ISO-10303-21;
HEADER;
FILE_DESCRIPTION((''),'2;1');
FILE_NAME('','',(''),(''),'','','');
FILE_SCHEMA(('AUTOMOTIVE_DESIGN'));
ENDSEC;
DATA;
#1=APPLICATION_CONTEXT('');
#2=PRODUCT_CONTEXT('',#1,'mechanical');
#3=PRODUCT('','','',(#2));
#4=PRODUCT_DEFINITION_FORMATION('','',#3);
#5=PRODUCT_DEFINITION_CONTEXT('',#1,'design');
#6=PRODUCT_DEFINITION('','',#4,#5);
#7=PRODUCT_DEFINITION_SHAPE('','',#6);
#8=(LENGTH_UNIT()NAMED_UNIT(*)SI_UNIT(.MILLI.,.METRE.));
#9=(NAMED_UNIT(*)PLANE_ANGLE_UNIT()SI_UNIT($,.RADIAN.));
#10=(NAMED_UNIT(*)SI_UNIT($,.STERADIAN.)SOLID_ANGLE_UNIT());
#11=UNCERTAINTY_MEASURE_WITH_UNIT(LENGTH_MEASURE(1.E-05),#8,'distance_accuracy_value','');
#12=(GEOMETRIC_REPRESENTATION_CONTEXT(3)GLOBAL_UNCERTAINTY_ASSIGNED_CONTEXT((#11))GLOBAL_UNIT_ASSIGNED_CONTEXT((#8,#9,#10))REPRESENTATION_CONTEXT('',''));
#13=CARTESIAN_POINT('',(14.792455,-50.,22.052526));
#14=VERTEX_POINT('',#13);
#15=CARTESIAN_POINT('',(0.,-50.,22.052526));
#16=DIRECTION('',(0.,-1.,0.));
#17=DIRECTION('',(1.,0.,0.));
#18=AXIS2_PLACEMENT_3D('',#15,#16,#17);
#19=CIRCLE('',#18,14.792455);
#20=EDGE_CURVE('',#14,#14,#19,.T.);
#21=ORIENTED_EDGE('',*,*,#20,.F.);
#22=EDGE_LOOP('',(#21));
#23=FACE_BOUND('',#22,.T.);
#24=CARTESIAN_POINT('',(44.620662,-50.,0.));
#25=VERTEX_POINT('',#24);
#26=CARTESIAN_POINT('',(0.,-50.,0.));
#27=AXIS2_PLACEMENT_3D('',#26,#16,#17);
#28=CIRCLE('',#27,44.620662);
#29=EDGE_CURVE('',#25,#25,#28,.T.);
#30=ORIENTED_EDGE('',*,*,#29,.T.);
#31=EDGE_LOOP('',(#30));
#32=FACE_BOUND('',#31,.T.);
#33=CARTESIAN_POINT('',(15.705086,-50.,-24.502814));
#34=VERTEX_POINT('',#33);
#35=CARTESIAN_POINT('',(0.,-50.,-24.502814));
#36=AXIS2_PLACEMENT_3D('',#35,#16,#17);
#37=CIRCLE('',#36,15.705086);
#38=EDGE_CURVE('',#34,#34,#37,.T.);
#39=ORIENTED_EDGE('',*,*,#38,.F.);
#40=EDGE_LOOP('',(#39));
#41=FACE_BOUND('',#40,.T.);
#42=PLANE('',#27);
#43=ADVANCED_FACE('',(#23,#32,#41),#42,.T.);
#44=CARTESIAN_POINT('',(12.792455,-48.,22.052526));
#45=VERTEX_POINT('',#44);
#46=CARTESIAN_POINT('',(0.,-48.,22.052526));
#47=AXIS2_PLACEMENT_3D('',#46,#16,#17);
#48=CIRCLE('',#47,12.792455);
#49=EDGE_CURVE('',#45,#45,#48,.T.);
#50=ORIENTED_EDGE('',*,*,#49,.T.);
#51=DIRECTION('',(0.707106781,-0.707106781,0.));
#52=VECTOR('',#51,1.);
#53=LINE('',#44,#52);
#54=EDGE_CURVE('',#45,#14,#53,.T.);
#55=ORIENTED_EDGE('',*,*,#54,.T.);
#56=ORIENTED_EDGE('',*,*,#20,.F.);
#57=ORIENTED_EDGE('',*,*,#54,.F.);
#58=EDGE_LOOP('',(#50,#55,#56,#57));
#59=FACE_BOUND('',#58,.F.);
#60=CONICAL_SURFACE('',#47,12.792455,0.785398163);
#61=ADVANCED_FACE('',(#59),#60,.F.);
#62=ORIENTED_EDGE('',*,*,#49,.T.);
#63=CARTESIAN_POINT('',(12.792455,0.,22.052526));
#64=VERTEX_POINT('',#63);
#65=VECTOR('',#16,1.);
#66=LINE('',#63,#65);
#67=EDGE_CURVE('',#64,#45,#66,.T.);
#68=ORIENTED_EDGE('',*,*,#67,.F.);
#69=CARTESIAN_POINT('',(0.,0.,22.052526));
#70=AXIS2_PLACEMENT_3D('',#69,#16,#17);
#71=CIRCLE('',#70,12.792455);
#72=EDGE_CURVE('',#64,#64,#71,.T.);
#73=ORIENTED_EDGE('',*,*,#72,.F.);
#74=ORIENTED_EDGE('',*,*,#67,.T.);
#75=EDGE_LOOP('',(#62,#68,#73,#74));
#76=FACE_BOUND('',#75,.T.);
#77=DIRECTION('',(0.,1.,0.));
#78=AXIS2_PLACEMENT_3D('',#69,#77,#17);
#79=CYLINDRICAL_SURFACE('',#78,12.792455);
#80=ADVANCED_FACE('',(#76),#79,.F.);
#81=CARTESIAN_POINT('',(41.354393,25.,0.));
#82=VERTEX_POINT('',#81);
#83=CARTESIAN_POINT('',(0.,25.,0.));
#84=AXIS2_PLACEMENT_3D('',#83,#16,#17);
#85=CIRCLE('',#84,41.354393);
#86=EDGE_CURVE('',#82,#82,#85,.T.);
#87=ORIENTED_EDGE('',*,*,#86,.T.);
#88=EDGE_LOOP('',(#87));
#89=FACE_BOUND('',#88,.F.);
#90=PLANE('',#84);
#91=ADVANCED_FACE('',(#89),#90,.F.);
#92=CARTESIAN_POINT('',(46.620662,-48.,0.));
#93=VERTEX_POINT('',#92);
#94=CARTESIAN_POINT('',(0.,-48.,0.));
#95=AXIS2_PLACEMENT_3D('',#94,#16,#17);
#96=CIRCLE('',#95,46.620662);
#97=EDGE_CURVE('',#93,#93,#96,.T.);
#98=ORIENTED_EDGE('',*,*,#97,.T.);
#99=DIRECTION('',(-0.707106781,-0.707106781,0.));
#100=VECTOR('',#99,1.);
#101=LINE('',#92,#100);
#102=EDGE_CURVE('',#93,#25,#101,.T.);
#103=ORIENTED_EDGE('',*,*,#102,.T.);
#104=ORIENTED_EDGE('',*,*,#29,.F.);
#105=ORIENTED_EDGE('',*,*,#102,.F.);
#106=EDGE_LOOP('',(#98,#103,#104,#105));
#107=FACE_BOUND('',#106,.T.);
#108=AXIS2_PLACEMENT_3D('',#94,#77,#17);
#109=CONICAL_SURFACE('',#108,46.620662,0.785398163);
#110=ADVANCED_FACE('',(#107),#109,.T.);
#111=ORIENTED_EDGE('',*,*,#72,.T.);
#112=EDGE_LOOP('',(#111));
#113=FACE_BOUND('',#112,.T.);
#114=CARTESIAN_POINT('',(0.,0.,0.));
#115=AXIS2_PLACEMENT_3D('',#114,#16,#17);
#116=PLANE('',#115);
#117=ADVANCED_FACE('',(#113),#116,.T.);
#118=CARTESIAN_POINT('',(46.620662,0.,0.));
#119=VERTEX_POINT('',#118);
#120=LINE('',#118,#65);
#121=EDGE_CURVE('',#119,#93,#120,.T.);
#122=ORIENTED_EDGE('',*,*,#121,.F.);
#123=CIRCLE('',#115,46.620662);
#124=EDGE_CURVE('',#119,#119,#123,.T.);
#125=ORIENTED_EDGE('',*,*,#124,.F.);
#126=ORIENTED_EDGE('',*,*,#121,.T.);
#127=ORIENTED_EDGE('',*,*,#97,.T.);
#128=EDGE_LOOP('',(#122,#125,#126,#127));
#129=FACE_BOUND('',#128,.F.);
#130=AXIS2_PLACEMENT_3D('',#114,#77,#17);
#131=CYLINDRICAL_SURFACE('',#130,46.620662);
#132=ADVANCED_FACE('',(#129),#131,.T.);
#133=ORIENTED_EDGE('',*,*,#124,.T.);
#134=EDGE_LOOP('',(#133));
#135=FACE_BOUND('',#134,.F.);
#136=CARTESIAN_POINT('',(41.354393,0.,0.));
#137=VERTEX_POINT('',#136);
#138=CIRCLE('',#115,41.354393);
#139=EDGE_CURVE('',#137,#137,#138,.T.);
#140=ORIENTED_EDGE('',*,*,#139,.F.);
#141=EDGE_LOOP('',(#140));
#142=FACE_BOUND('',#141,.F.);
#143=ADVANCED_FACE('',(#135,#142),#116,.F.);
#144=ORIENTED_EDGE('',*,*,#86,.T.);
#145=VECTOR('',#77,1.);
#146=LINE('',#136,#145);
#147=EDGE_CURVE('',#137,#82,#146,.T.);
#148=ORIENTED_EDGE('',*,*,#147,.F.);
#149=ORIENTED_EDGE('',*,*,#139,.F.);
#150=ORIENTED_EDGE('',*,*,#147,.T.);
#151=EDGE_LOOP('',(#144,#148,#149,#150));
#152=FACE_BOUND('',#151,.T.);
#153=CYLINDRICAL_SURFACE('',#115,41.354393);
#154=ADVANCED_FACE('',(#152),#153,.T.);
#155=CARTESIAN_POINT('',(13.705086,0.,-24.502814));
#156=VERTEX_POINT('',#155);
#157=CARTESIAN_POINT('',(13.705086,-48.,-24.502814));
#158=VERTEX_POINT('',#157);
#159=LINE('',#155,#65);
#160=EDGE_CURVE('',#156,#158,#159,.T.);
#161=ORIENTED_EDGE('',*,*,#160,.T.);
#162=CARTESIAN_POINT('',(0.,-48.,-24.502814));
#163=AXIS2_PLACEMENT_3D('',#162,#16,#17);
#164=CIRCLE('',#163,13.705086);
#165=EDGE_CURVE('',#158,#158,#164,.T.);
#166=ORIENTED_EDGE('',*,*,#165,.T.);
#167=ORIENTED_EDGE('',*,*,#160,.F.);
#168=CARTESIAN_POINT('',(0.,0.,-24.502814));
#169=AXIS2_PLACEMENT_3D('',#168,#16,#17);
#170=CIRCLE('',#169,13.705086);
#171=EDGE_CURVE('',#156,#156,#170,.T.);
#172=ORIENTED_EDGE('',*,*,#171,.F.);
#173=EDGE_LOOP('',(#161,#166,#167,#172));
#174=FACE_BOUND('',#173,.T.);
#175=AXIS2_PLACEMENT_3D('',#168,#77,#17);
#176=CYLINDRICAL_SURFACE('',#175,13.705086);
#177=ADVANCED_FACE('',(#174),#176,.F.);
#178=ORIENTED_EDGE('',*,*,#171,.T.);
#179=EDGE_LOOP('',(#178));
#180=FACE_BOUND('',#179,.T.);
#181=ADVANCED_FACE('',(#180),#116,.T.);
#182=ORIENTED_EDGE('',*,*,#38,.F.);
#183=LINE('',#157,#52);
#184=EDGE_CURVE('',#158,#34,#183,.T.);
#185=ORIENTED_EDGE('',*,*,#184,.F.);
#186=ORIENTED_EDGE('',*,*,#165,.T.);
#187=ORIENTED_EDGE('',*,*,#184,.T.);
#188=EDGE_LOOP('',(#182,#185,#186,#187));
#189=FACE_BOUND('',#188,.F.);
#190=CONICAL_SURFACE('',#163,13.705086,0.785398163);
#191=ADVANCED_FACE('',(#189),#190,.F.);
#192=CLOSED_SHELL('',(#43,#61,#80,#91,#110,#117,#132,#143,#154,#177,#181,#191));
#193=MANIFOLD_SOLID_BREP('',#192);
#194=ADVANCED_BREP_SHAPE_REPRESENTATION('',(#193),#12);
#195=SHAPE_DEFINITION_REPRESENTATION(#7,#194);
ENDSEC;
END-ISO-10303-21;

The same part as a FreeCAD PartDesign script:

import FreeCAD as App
import Part
import Sketcher


def edges_at(feature, points):
    """Names of the edges that pass closest to the given points."""
    edges = feature.Shape.Edges
    near = lambda p: min(range(len(edges)), key=lambda i: edges[i].distToShape(Part.Vertex(*p))[0])
    return sorted({f"Edge{near(p) + 1}" for p in points})

doc = App.newDocument("Part")
body = doc.addObject("PartDesign::Body", "Body")

# Sketch on XZ plane
sketch1 = body.newObject("Sketcher::SketchObject", "Sketch")
sketch1.AttachmentSupport = (doc.getObject("XZ_Plane"), [""])
sketch1.MapMode = "FlatFace"
sketch1.addGeometry(Part.Circle(App.Vector(0, 0, 0), App.Vector(0, 0, 1), 47), False)
sketch1.addGeometry(Part.Circle(App.Vector(0, -25, 0), App.Vector(0, 0, 1), 14), False)
sketch1.addGeometry(Part.Circle(App.Vector(0, 22, 0), App.Vector(0, 0, 1), 13), False)
sketch1.addConstraint(Sketcher.Constraint("Coincident", 0, 3, -1, 1))
sketch1.addConstraint(Sketcher.Constraint("PointOnObject", 1, 3, -2))
sketch1.addConstraint(Sketcher.Constraint("PointOnObject", 2, 3, -2))
sketch1.addConstraint(Sketcher.Constraint("Diameter", 1, 27.410172))
sketch1.addConstraint(Sketcher.Constraint("Diameter", 2, 25.58491))
sketch1.addConstraint(Sketcher.Constraint("Diameter", 0, 93.241324))
sketch1.addConstraint(Sketcher.Constraint("DistanceY", 1, 3, 2, 3, 46.55534))
sketch1.addConstraint(Sketcher.Constraint("DistanceY", 1, 3, -1, 1, 24.502814))
pad1 = body.newObject("PartDesign::Pad", "Pad")
pad1.Profile = sketch1
pad1.Length = 50
doc.recompute()

chamfer = body.newObject("PartDesign::Chamfer", "Chamfer")
chamfer.Base = (pad1, edges_at(pad1, [(-46.621, -50, 0), (-13.705, -50, -24.503), (-12.792, -50, 22.053)]))
chamfer.Size = 2

# Sketch on XZ plane
sketch2 = body.newObject("Sketcher::SketchObject", "Sketch001")
sketch2.AttachmentSupport = (doc.getObject("XZ_Plane"), [""])
sketch2.MapMode = "FlatFace"
sketch2.addGeometry(Part.Circle(App.Vector(0, 0, 0), App.Vector(0, 0, 1), 41), False)
sketch2.addConstraint(Sketcher.Constraint("Coincident", 0, 3, -1, 1))
sketch2.addConstraint(Sketcher.Constraint("Diameter", 0, 82.708786))
pad2 = body.newObject("PartDesign::Pad", "Pad001")
pad2.Profile = sketch2
pad2.Length = 25
pad2.Reversed = True

doc.recompute()
